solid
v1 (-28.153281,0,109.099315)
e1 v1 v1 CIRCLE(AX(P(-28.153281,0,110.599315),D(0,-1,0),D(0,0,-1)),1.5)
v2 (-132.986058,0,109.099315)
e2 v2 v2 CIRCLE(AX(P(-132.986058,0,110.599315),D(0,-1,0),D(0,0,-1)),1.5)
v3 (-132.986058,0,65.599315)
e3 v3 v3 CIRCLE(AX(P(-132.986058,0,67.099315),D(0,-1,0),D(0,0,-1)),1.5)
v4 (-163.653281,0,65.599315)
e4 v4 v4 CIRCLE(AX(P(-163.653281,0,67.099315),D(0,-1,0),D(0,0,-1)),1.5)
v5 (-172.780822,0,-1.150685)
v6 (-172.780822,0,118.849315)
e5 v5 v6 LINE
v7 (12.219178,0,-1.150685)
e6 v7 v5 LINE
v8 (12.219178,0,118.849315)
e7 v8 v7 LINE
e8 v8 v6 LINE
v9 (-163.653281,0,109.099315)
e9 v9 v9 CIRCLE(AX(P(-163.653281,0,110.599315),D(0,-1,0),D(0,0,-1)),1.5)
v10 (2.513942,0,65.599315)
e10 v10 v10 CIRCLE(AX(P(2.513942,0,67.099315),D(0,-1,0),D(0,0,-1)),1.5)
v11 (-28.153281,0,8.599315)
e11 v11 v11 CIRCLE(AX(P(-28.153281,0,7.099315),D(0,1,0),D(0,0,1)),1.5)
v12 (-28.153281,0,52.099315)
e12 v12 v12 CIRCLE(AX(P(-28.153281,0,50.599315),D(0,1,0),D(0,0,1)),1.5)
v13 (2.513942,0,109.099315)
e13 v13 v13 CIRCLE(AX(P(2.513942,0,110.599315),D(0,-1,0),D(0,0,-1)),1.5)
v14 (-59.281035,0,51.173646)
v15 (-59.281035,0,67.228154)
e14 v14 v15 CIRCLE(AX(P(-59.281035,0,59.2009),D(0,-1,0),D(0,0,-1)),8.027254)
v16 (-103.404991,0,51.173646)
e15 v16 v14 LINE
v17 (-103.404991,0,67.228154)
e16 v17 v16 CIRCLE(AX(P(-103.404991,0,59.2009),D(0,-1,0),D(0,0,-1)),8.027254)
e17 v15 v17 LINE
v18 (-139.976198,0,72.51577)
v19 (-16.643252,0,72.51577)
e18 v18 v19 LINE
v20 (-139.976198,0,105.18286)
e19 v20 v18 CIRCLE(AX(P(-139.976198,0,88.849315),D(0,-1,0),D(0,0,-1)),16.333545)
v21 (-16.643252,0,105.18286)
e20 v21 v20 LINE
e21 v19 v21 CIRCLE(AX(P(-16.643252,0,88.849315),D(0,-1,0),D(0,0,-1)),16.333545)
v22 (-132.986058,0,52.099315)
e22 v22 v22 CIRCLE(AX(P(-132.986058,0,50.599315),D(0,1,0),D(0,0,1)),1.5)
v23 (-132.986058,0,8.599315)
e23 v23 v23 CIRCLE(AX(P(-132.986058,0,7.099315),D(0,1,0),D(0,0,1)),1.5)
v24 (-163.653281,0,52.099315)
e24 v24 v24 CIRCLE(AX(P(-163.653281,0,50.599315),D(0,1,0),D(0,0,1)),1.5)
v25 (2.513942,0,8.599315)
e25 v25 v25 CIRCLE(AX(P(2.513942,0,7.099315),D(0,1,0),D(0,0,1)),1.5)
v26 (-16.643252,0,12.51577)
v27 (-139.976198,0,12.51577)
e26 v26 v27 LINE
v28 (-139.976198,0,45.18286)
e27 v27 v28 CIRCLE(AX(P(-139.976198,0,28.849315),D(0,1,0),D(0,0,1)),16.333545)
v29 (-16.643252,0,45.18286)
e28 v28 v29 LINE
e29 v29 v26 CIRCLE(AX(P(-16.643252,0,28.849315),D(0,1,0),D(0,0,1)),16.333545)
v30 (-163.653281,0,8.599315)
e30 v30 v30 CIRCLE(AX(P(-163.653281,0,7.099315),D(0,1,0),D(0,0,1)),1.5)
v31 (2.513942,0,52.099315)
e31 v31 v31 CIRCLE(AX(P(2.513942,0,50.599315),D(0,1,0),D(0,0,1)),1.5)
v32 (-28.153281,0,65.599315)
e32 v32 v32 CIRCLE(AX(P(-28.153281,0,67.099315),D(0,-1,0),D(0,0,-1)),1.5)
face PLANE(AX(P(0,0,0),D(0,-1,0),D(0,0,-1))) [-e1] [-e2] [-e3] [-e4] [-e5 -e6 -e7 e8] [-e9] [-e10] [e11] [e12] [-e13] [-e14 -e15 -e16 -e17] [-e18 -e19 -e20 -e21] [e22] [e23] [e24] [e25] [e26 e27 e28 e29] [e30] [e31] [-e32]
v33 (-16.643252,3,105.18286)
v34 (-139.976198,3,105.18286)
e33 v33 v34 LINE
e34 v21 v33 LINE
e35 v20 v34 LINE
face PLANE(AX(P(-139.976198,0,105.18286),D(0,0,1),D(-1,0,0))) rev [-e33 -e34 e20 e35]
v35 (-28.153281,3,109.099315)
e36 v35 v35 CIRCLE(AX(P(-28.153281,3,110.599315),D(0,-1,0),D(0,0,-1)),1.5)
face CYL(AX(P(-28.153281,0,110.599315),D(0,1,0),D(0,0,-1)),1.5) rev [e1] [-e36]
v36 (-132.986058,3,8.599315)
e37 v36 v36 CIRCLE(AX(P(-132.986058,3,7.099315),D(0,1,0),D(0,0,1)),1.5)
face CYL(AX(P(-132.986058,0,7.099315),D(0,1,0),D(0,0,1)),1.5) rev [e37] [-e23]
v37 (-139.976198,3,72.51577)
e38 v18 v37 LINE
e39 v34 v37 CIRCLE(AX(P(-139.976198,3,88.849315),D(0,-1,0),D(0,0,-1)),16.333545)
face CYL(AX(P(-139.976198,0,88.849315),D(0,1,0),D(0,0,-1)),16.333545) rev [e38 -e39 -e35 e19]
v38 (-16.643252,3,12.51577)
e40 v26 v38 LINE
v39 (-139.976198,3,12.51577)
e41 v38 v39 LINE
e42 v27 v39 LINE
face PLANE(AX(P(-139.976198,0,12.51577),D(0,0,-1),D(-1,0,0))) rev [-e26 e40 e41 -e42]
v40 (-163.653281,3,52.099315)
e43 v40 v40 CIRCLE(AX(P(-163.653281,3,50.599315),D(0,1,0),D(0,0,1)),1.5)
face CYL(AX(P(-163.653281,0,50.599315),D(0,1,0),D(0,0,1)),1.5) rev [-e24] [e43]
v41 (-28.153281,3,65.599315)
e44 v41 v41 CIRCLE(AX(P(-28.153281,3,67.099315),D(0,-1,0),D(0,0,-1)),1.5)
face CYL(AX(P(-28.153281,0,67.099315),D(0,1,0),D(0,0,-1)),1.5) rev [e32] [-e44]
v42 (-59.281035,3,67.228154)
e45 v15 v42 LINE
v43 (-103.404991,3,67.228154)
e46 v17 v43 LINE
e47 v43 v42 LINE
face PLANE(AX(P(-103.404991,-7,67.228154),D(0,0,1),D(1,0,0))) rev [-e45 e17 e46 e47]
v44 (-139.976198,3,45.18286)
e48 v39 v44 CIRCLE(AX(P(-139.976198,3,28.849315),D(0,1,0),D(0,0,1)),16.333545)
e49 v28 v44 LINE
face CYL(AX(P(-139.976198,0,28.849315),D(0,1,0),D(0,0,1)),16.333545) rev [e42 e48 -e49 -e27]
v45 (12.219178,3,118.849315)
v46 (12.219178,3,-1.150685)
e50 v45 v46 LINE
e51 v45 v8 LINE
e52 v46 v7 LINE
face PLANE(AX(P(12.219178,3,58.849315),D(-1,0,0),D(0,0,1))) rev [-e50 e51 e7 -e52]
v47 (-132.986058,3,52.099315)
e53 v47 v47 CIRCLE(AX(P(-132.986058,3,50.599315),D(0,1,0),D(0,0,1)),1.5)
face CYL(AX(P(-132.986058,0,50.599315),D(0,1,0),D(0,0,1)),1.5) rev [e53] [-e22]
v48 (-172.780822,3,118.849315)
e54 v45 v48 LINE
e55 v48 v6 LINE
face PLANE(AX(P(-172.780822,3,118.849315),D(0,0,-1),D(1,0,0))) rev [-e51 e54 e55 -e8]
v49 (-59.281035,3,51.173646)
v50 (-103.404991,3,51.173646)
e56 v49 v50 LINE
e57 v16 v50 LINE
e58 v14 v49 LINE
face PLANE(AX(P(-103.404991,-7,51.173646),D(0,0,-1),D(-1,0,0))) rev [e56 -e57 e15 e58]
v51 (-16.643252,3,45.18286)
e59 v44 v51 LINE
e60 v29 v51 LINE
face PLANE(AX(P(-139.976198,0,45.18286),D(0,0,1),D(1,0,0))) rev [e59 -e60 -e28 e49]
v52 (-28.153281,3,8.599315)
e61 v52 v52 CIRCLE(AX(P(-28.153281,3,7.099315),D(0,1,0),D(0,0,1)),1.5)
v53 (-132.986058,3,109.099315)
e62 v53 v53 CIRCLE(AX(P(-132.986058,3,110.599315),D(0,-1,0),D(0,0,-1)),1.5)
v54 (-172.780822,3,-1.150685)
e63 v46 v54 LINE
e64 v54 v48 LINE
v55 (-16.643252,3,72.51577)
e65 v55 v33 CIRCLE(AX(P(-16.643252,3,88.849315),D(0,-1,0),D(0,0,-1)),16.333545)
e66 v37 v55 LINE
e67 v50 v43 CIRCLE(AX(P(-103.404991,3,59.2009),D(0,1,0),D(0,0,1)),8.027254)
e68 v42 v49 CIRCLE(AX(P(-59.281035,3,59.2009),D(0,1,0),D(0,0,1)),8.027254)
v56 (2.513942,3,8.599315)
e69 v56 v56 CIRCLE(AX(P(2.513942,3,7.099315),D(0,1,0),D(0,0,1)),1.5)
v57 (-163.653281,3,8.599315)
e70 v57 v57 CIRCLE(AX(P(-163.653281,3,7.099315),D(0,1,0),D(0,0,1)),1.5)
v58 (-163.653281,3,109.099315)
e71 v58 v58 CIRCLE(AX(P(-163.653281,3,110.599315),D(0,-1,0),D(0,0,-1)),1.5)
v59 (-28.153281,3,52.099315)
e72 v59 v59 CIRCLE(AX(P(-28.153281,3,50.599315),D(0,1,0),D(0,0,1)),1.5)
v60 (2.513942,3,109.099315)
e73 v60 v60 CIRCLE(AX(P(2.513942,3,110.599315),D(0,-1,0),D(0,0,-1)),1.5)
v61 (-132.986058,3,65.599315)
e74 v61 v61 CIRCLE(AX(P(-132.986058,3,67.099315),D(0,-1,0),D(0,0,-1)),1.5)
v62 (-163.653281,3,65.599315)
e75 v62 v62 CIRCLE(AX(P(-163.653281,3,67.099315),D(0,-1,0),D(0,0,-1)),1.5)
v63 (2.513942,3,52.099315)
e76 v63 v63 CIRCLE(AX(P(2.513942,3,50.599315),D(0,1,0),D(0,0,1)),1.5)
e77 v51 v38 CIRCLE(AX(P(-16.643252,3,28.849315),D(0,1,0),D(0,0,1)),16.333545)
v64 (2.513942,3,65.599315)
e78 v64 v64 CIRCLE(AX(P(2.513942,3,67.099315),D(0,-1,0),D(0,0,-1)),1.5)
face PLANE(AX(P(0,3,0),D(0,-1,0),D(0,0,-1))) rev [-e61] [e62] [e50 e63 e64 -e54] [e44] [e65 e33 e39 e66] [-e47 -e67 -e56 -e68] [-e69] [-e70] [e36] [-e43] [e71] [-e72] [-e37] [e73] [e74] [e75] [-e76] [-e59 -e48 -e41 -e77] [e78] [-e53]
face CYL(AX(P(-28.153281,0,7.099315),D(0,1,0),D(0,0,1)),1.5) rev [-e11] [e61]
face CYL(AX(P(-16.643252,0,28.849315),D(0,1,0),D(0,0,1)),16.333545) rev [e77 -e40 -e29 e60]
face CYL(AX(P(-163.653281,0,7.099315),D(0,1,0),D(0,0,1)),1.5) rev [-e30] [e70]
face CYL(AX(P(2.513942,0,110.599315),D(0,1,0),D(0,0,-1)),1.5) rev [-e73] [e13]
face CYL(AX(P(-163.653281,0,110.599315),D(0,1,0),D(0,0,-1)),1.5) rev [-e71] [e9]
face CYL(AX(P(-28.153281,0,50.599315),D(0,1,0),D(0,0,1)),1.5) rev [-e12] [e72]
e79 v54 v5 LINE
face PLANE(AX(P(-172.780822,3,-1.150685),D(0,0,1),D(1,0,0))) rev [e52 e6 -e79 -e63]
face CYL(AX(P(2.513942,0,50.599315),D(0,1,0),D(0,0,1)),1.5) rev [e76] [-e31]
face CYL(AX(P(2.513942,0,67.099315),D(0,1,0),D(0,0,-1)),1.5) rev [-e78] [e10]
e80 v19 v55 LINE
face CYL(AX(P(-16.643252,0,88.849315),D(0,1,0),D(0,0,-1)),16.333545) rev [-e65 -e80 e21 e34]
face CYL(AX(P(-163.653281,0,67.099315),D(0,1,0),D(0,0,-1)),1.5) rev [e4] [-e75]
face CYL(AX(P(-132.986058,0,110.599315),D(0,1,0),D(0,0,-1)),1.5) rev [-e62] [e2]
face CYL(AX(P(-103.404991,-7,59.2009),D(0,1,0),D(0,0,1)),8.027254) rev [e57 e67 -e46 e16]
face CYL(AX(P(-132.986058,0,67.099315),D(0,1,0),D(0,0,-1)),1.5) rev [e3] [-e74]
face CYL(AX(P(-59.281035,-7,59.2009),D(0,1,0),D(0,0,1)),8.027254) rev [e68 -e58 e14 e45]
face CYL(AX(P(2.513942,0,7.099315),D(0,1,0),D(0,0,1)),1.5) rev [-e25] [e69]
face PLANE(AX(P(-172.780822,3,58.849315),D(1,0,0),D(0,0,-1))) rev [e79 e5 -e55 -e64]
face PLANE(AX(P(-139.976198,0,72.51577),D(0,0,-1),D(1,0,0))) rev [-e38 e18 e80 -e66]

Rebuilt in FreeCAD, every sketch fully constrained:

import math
import FreeCAD as App
import Part
import Sketcher
from FreeCAD import Vector


def add_polygon(sketch, points):
    """Adds a closed chain of lines whose ends are joined by coincident constraints."""
    first, n = sketch.GeometryCount, len(points)
    for a, b in zip(points, points[1:] + points[:1]):
        sketch.addGeometry(Part.LineSegment(App.Vector(*a, 0), App.Vector(*b, 0)), False)
    for i in range(n):
        sketch.addConstraint(Sketcher.Constraint("Coincident", first + i, 2, first + (i + 1) % n, 1))

doc = App.newDocument("Part")
body = doc.addObject("PartDesign::Body", "Body")

sketch1 = body.newObject("Sketcher::SketchObject", "Sketch")
sketch1.AttachmentSupport = (doc.getObject("XZ_Plane"), [""])
sketch1.MapMode = "FlatFace"
add_polygon(sketch1, [(-173, -1), (-173, 59), (12, 59), (12, -1)])
sketch1.addConstraint([
    Sketcher.Constraint("Vertical", 0),
    Sketcher.Constraint("Horizontal", 1),
    Sketcher.Constraint("Vertical", 2),
    Sketcher.Constraint("Horizontal", 3),
    Sketcher.Constraint("DistanceX", 1, 1, 1, 2, 185.0),
    Sketcher.Constraint("DistanceY", 0, 1, 0, 2, 60.0),
    Sketcher.Constraint("DistanceX", 0, 2, -1, 1, 172.780822),
    Sketcher.Constraint("DistanceY", -1, 1, 0, 2, 58.849315),
])
pad1 = body.newObject("PartDesign::Pad", "Pad")
pad1.Profile = sketch1
pad1.Length = 3
pad1.Reversed = True

sketch2 = body.newObject("Sketcher::SketchObject", "Sketch001")
sketch2.AttachmentSupport = (doc.getObject("XZ_Plane"), [""])
sketch2.MapMode = "FlatFace"
sketch2.AttachmentOffset = App.Placement(Vector(0, 0, -3), App.Rotation())
sketch2.addGeometry([
    Part.Circle(Vector(-163.7, 7.1, 0), Vector(0, 0, 1), 1.5),
    Part.Circle(Vector(-163.7, 50.6, 0), Vector(0, 0, 1), 1.5),
    Part.Circle(Vector(-28.2, 50.6, 0), Vector(0, 0, 1), 1.5),
    Part.Circle(Vector(-28.2, 7.1, 0), Vector(0, 0, 1), 1.5),
    Part.Circle(Vector(-133, 7.1, 0), Vector(0, 0, 1), 1.5),
    Part.Circle(Vector(-133, 50.6, 0), Vector(0, 0, 1), 1.5),
    Part.Circle(Vector(2.5, 50.6, 0), Vector(0, 0, 1), 1.5),
    Part.Circle(Vector(2.5, 7.1, 0), Vector(0, 0, 1), 1.5),
    Part.LineSegment(Vector(-16.6, 12.5, 0), Vector(-140, 12.5, 0)),
    Part.ArcOfCircle(Part.Circle(Vector(-140, 28.8, 0), Vector(0, 0, 1), 16.3), math.radians(90), math.radians(270)),
    Part.LineSegment(Vector(-140, 45.2, 0), Vector(-16.6, 45.2, 0)),
    Part.ArcOfCircle(Part.Circle(Vector(-16.6, 28.8, 0), Vector(0, 0, 1), 16.3), math.radians(-90), math.radians(90)),
], False)
sketch2.addConstraint([
    Sketcher.Constraint("Tangent", 8, 2, 9, 2),
    Sketcher.Constraint("Tangent", 9, 1, 10, 1),
    Sketcher.Constraint("Tangent", 10, 2, 11, 2),
    Sketcher.Constraint("Tangent", 11, 1, 8, 1),
    Sketcher.Constraint("Horizontal", 8),
    Sketcher.Constraint("Horizontal", 10),
    Sketcher.Constraint("Equal", 0, 1),
    Sketcher.Constraint("Equal", 1, 2),
    Sketcher.Constraint("Equal", 2, 3),
    Sketcher.Constraint("Equal", 3, 4),
    Sketcher.Constraint("Equal", 4, 5),
    Sketcher.Constraint("Equal", 5, 6),
    Sketcher.Constraint("Equal", 6, 7),
    Sketcher.Constraint("Horizontal", 1, 3, 2, 3),
    Sketcher.Constraint("Horizontal", 0, 3, 3, 3),
    Sketcher.Constraint("Horizontal", 3, 3, 4, 3),
    Sketcher.Constraint("Horizontal", 2, 3, 5, 3),
    Sketcher.Constraint("Horizontal", 5, 3, 6, 3),
    Sketcher.Constraint("Horizontal", 4, 3, 7, 3),
    Sketcher.Constraint("Vertical", 0, 3, 1, 3),
    Sketcher.Constraint("Vertical", 2, 3, 3, 3),
    Sketcher.Constraint("Vertical", 4, 3, 5, 3),
    Sketcher.Constraint("Vertical", 6, 3, 7, 3),
    Sketcher.Constraint("Diameter", 0, 3.0),
    Sketcher.Constraint("DistanceY", 0, 3, 1, 3, 43.5),
    Sketcher.Constraint("DistanceX", 1, 3, 2, 3, 135.5),
    Sketcher.Constraint("DistanceX", 5, 3, 6, 3, 135.5),
    Sketcher.Constraint("DistanceY", 4, 3, 9, 3, 21.75),
    Sketcher.Constraint("Radius", 9, 16.333545),
    Sketcher.Constraint("DistanceX", 8, 2, 8, 1, 123.332946),
    Sketcher.Constraint("DistanceX", 0, 3, -1, 1, 163.653281),
    Sketcher.Constraint("DistanceX", 11, 3, -1, 1, 16.643252),
    Sketcher.Constraint("DistanceY", -1, 1, 8, 2, 12.51577),
    Sketcher.Constraint("DistanceX", 9, 3, 4, 3, 6.99014),
])
pocket1 = body.newObject("PartDesign::Pocket", "Pocket")
pocket1.Profile = sketch2
pocket1.Length = 3
pocket1.Reversed = True
body2 = doc.addObject("PartDesign::Body", "Body001")
doc.recompute()

body2.BaseFeature = body
doc.recompute()

mirroring = doc.addObject("Part::Mirroring", "Mirroring")
mirroring.Source = body
mirroring.Base = Vector(-172.780822, 3, 58.849315)
mirroring.Normal = Vector(0, 0, -1)
body3 = doc.addObject("PartDesign::Body", "Body002")
body3.BaseFeature = mirroring
boolean = body2.newObject("PartDesign::Boolean", "Boolean")
boolean.Type = "Fuse"
boolean.addObjects([body3])
doc.recompute()

sketch3 = body2.newObject("Sketcher::SketchObject", "Sketch002")
sketch3.AttachmentSupport = (doc.getObject("XZ_Plane001"), [""])
sketch3.MapMode = "FlatFace"
sketch3.AttachmentOffset = App.Placement(Vector(0, 0, -3), App.Rotation())
sketch3.addGeometry([
    Part.LineSegment(Vector(-59, 51, 0), Vector(-103, 51, 0)),
    Part.ArcOfCircle(Part.Circle(Vector(-103, 59, 0), Vector(0, 0, 1), 8), math.radians(90), math.radians(270)),
    Part.LineSegment(Vector(-103, 67, 0), Vector(-59, 67, 0)),
    Part.ArcOfCircle(Part.Circle(Vector(-59, 59, 0), Vector(0, 0, 1), 8), math.radians(-90), math.radians(90)),
], False)
sketch3.addConstraint([
    Sketcher.Constraint("Tangent", 0, 2, 1, 2),
    Sketcher.Constraint("Tangent", 1, 1, 2, 1),
    Sketcher.Constraint("Tangent", 2, 2, 3, 2),
    Sketcher.Constraint("Tangent", 3, 1, 0, 1),
    Sketcher.Constraint("Horizontal", 0),
    Sketcher.Constraint("Horizontal", 2),
    Sketcher.Constraint("Radius", 1, 8.027254),
    Sketcher.Constraint("DistanceY", -1, 1, 1, 3, 59.2009),
    Sketcher.Constraint("DistanceX", 0, 2, 0, 1, 44.123955),
    Sketcher.Constraint("DistanceX", 1, 3, -1, 1, 103.404991),
])
pocket2 = body2.newObject("PartDesign::Pocket", "Pocket001")
pocket2.Profile = sketch3
pocket2.Length = 10
pocket2.Reversed = True
mirroring.Visibility = False

doc.recompute()
